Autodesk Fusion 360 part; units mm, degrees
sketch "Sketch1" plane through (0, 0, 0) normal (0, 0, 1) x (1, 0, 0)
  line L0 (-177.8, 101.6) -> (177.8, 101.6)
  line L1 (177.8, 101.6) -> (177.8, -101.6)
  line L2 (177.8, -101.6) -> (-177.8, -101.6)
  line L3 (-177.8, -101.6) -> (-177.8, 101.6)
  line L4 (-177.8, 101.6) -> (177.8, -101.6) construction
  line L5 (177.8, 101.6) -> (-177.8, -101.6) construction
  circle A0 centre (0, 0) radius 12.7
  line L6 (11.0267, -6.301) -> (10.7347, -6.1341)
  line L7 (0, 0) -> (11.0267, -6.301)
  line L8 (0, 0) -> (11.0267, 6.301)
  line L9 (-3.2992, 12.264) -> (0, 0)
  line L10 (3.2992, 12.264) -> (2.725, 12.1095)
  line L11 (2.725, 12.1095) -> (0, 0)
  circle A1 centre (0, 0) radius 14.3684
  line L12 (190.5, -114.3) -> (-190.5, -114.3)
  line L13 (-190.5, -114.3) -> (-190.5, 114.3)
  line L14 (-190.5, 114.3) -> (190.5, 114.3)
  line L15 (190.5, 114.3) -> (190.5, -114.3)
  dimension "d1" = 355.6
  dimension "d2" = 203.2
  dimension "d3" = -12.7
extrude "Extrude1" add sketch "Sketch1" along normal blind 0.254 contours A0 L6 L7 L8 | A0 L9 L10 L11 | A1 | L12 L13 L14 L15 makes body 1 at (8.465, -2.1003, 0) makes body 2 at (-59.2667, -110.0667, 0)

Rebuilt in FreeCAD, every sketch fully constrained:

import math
import FreeCAD as App
import Part
import Sketcher

V = App.Vector
Q = App.Units.Quantity


def add_polygon(sketch, points):
    """Adds a closed chain of lines whose ends are joined by coincident constraints."""
    first, n = sketch.GeometryCount, len(points)
    for a, b in zip(points, points[1:] + points[:1]):
        sketch.addGeometry(Part.LineSegment(App.Vector(*a, 0), App.Vector(*b, 0)), False)
    for i in range(n):
        sketch.addConstraint(Sketcher.Constraint("Coincident", first + i, 2, first + (i + 1) % n, 1))

doc = App.newDocument("Part")
body = doc.addObject("PartDesign::Body", "Body")
body.AllowCompound = True

sketch1 = body.newObject("Sketcher::SketchObject", "Sketch")
sketch1.AttachmentSupport = (doc.getObject("XY_Plane"), [""])
sketch1.MapMode = "FlatFace"
sketch1.addGeometry(Part.Circle(V(0, 0, 0), V(0, 0, 1), 14.3684), False)
sketch1.addGeometry(Part.LineSegment(V(0, 0, 0), V(2.725, 12.1095, 0)), False)
sketch1.addGeometry(Part.LineSegment(V(2.725, 12.1095, 0), V(3.2992, 12.264, 0)), False)
sketch1.addGeometry(Part.ArcOfCircle(Part.Circle(V(0, 0, 0), V(0, 0, 1), 12.7), math.radians(29.744993), math.radians(74.943039)), False)
sketch1.addGeometry(Part.LineSegment(V(11.0267, 6.301, 0), V(0, 0, 0)), False)
sketch1.addGeometry(Part.LineSegment(V(0, 0, 0), V(10.734682, -6.134132, 0)), False)
sketch1.addGeometry(Part.LineSegment(V(10.7347, -6.1341, 0), V(11.0267, -6.301, 0)), False)
sketch1.addGeometry(Part.ArcOfCircle(Part.Circle(V(0, 0, 0), V(0, 0, 1), 12.7), math.radians(105.056961), math.radians(330.255007)), False)
sketch1.addGeometry(Part.LineSegment(V(-3.2992, 12.264, 0), V(0, 0, 0)), False)
add_polygon(sketch1, [(-190.5, -114.3), (190.5, -114.3), (190.5, 114.3), (-190.5, 114.3)])
add_polygon(sketch1, [(-177.8, -101.6), (-177.8, 101.6), (177.8, 101.6), (177.8, -101.6)])
sketch1.addConstraint([
    Sketcher.Constraint("Coincident", 1, 2, 2, 1),
    Sketcher.Constraint("Coincident", 2, 2, 3, 2),
    Sketcher.Constraint("Coincident", 3, 1, 4, 1),
    Sketcher.Constraint("Coincident", 4, 2, 1, 1),
    Sketcher.Constraint("Coincident", 5, 2, 6, 1),
    Sketcher.Constraint("Coincident", 6, 2, 7, 2),
    Sketcher.Constraint("Coincident", 7, 1, 8, 1),
    Sketcher.Constraint("Coincident", 8, 2, 5, 1),
    Sketcher.Constraint("Horizontal", 9),
    Sketcher.Constraint("Vertical", 10),
    Sketcher.Constraint("Horizontal", 11),
    Sketcher.Constraint("Vertical", 12),
    Sketcher.Constraint("Vertical", 13),
    Sketcher.Constraint("Horizontal", 14),
    Sketcher.Constraint("Vertical", 15),
    Sketcher.Constraint("Horizontal", 16),
    Sketcher.Constraint("Coincident", 0, 3, -1, 1),
    Sketcher.Constraint("Coincident", 3, 3, -1, 1),
    Sketcher.Constraint("Coincident", 7, 3, -1, 1),
    Sketcher.Constraint("Coincident", 4, 2, -1, 1),
    Sketcher.Constraint("Coincident", 8, 2, -1, 1),
    Sketcher.Constraint("Equal", 3, 7),
    Sketcher.Constraint("Symmetric", 9, 2, 11, 2, -1, 1),
    Sketcher.Constraint("Symmetric", 13, 2, 15, 2, -1, 1),
    Sketcher.Constraint("Parallel", 5, 6),
    Sketcher.Constraint("Perpendicular", 2, 8),
    Sketcher.Constraint("Horizontal", 2, 2, 7, 1),
    Sketcher.Constraint("Vertical", 3, 1, 6, 2),
    Sketcher.Constraint("Radius", 3, Q("0.5 in")),
    Sketcher.Constraint("DistanceX", 14, 1, 14, 2, Q("14 in")),
    Sketcher.Constraint("DistanceY", 13, 1, 13, 2, Q("8 in")),
    Sketcher.Constraint("DistanceX", 11, 2, 13, 2, Q("0.5 in")),
    Sketcher.Constraint("DistanceY", 13, 2, 11, 2, Q("0.5 in")),
    Sketcher.Constraint("Diameter", 0, 28.7368),
    Sketcher.Constraint("Angle", 2, Q("15.06 deg")),
    Sketcher.Constraint("Distance", 2, Q("0.0234 in")),
    Sketcher.Constraint("DistanceY", 5, 2, -1, 1, Q("0.2415 in")),
    Sketcher.Constraint("DistanceX", 5, 2, 3, 1, Q("0.0115 in")),
])
pad1 = body.newObject("PartDesign::Pad", "Pad")
pad1.Profile = sketch1
pad1.Length = Q("0.01 in")

doc.recompute()
